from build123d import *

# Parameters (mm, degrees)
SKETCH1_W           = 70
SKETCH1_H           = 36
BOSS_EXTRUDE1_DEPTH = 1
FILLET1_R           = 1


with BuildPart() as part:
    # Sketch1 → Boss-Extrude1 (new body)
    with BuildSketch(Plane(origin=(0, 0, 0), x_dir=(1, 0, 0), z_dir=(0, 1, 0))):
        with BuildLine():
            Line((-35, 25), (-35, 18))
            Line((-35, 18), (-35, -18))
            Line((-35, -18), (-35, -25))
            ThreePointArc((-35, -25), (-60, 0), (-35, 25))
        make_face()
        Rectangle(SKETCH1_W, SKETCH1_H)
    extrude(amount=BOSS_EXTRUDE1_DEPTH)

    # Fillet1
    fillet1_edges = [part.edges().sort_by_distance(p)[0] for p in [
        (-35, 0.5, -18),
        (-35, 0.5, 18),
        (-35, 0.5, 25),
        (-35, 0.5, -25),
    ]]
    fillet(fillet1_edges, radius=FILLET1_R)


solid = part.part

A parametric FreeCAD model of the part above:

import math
import FreeCAD as App
import Part
import Sketcher

V = App.Vector
Q = App.Units.Quantity


def edges_at(feature, points):
    """Names of the edges that pass closest to the given points."""
    edges = feature.Shape.Edges
    near = lambda p: min(range(len(edges)), key=lambda i: edges[i].distToShape(Part.Vertex(*p))[0])
    return sorted({f"Edge{near(p) + 1}" for p in points})

doc = App.newDocument("Part")
body = doc.addObject("PartDesign::Body", "Body")

sketch1 = body.newObject("Sketcher::SketchObject", "Sketch")
sketch1.AttachmentSupport = (doc.getObject("XZ_Plane"), [""])
sketch1.MapMode = "FlatFace"
sketch1.addGeometry([
    Part.LineSegment(V(-35, -18, 0), V(-35, -25, 0)),
    Part.ArcOfCircle(Part.Circle(V(-35, 0, 0), V(0, 0, 1), 25), math.radians(90), math.radians(270)),
    Part.LineSegment(V(-35, 25, 0), V(-35, 18, 0)),
    Part.LineSegment(V(-35, 18, 0), V(35, 18, 0)),
    Part.LineSegment(V(35, 18, 0), V(35, -18, 0)),
    Part.LineSegment(V(35, -18, 0), V(-35, -18, 0)),
], False)
sketch1.addConstraint([
    Sketcher.Constraint("Coincident", 0, 2, 1, 2),
    Sketcher.Constraint("Coincident", 1, 1, 2, 1),
    Sketcher.Constraint("Coincident", 2, 2, 3, 1),
    Sketcher.Constraint("Coincident", 3, 2, 4, 1),
    Sketcher.Constraint("Coincident", 4, 2, 5, 1),
    Sketcher.Constraint("Coincident", 5, 2, 0, 1),
    Sketcher.Constraint("Vertical", 0),
    Sketcher.Constraint("Vertical", 2),
    Sketcher.Constraint("Horizontal", 3),
    Sketcher.Constraint("Vertical", 4),
    Sketcher.Constraint("Horizontal", 5),
    Sketcher.Constraint("Symmetric", 2, 2, 4, 2, -1, 1),
    Sketcher.Constraint("Symmetric", 0, 2, 1, 1, -1),
    Sketcher.Constraint("Vertical", 1, 3, 0, 2),
    Sketcher.Constraint("Radius", 1, Q("25 mm")),
    Sketcher.Constraint("DistanceX", 3, 1, 3, 2, Q("70 mm")),
    Sketcher.Constraint("DistanceY", 0, 2, 0, 1, Q("7 mm")),
])
pad1 = body.newObject("PartDesign::Pad", "Pad")
pad1.Profile = sketch1
pad1.Length = 1
pad1.Reversed = True
doc.recompute()

fillet = body.newObject("PartDesign::Fillet", "Fillet")
fillet.Base = (pad1, edges_at(pad1, [
    (-35, 0.5, -18),
    (-35, 0.5, 18),
    (-35, 0.5, 25),
    (-35, 0.5, -25),
]))
fillet.Radius = 1

doc.recompute()
